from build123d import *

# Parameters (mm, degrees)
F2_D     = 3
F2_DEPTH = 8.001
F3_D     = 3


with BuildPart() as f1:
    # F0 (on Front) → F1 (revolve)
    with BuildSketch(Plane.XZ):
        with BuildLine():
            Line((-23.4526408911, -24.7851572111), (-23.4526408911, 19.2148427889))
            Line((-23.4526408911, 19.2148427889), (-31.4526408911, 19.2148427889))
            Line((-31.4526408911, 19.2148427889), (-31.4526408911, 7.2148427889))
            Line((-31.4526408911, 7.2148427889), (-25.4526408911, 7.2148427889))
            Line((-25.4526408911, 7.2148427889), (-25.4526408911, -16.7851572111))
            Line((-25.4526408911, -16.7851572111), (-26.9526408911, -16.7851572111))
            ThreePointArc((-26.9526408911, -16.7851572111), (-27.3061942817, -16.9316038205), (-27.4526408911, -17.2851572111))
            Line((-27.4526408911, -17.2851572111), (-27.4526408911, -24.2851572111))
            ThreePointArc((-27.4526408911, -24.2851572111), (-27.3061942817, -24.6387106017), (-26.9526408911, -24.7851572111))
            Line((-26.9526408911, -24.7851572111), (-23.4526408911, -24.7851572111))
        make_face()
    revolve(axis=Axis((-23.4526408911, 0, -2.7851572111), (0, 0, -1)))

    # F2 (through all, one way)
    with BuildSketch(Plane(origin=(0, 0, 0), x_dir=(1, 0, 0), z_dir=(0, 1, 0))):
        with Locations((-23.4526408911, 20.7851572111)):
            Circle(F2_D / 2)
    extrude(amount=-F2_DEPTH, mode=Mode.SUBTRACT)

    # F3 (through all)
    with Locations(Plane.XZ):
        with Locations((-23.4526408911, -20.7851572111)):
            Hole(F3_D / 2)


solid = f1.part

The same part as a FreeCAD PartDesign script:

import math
import FreeCAD as App
import Part
import Sketcher
from FreeCAD import Vector

doc = App.newDocument("Part")
params = doc.addObject("Spreadsheet::Sheet", "Params")
for row, (alias, value) in enumerate([
    ("sketch1_radius", "0.5 mm"),
    ("sketch1_width", "8 mm"),
    ("sketch1_width2", "6 mm"),
    ("sketch1_height", "44 mm"),
    ("sketch1_height2", "12 mm"),
    ("revolution_angle", "360 deg"),
    ("sketch2_diameter", "3 mm"),
    ("sketch3_diameter", "3 mm"),
    ("hole_diameter", "3 mm"),
], start=1):
    params.set(f"A{row}", alias)
    params.set(f"B{row}", "=" + value)
    params.setAlias(f"B{row}", alias)

body = doc.addObject("PartDesign::Body", "Body")

# Sketch on XZ plane
sketch1 = body.newObject("Sketcher::SketchObject", "Sketch")
sketch1.AttachmentSupport = (doc.getObject("XZ_Plane"), [""])
sketch1.MapMode = "FlatFace"
sketch1.addGeometry([
    Part.LineSegment(Vector(-23.5, -24.8, 0), Vector(-23.5, 19.2, 0)),  # 0
    Part.LineSegment(Vector(-23.5, 19.2, 0), Vector(-31.5, 19.2, 0)),  # 1
    Part.LineSegment(Vector(-31.5, 19.2, 0), Vector(-31.5, 7.2, 0)),  # 2
    Part.LineSegment(Vector(-31.5, 7.2, 0), Vector(-25.5, 7.2, 0)),  # 3
    Part.LineSegment(Vector(-25.5, 7.2, 0), Vector(-25.5, -16.8, 0)),  # 4
    Part.LineSegment(Vector(-25.5, -16.8, 0), Vector(-27, -16.8, 0)),  # 5
    Part.ArcOfCircle(Part.Circle(Vector(-27, -17.3, 0), Vector(0, 0, 1), 0.5), math.radians(90), math.radians(180)),  # 6
    Part.LineSegment(Vector(-27.5, -17.3, 0), Vector(-27.5, -24.3, 0)),  # 7
    Part.ArcOfCircle(Part.Circle(Vector(-27, -24.3, 0), Vector(0, 0, 1), 0.5), math.radians(180), math.radians(270)),  # 8
    Part.LineSegment(Vector(-27, -24.8, 0), Vector(-23.5, -24.8, 0)),  # 9
], False)
sketch1.addGeometry(Part.LineSegment(Vector(-23.5, 19.2, 0), Vector(-23.5, -24.8, 0)), True)  # axis
sketch1.addConstraint([
    Sketcher.Constraint("Coincident", 0, 2, 1, 1),
    Sketcher.Constraint("Coincident", 1, 2, 2, 1),
    Sketcher.Constraint("Coincident", 2, 2, 3, 1),
    Sketcher.Constraint("Coincident", 3, 2, 4, 1),
    Sketcher.Constraint("Coincident", 4, 2, 5, 1),
    Sketcher.Constraint("Tangent", 5, 2, 6, 1),
    Sketcher.Constraint("Tangent", 6, 2, 7, 1),
    Sketcher.Constraint("Tangent", 7, 2, 8, 1),
    Sketcher.Constraint("Tangent", 8, 2, 9, 1),
    Sketcher.Constraint("Coincident", 9, 2, 0, 1),
    Sketcher.Constraint("Vertical", 0),
    Sketcher.Constraint("Horizontal", 1),
    Sketcher.Constraint("Vertical", 2),
    Sketcher.Constraint("Horizontal", 3),
    Sketcher.Constraint("Vertical", 4),
    Sketcher.Constraint("Horizontal", 5),
    Sketcher.Constraint("Vertical", 7),
    Sketcher.Constraint("Horizontal", 9),
    Sketcher.Constraint("Vertical", 10),
    Sketcher.Constraint("Coincident", 10, 1, 0, 2),
    Sketcher.Constraint("Equal", 6, 8),
    Sketcher.Constraint("Horizontal", 8, 2, 10, 2),
    Sketcher.Constraint("Radius", 6, 0.5),
    Sketcher.Constraint("DistanceX", 1, 2, 1, 1, 8.0),
    Sketcher.Constraint("DistanceX", 3, 1, 3, 2, 6.0),
    Sketcher.Constraint("DistanceY", 0, 1, 0, 2, 44.0),
    Sketcher.Constraint("DistanceY", 2, 2, 2, 1, 12.0),
    Sketcher.Constraint("DistanceY", 4, 2, 4, 1, 24.0),
    Sketcher.Constraint("DistanceX", 5, 2, 5, 1, 1.5),
    Sketcher.Constraint("DistanceX", 6, 3, -1, 1, 26.952641),
    Sketcher.Constraint("DistanceY", 6, 3, -1, 1, 17.285157),
])
sketch1.setExpression("Constraints[22]", "Params.sketch1_radius")
sketch1.setExpression("Constraints[23]", "Params.sketch1_width")
sketch1.setExpression("Constraints[24]", "Params.sketch1_width2")
sketch1.setExpression("Constraints[25]", "Params.sketch1_height")
sketch1.setExpression("Constraints[26]", "Params.sketch1_height2")
revolution = body.newObject("PartDesign::Revolution", "Revolution")
revolution.Profile = sketch1
revolution.ReferenceAxis = (sketch1, ["Axis0"])
revolution.setExpression("Angle", "Params.revolution_angle")

# Sketch on XZ plane
sketch2 = body.newObject("Sketcher::SketchObject", "Sketch001")
sketch2.AttachmentSupport = (doc.getObject("XZ_Plane"), [""])
sketch2.MapMode = "FlatFace"
sketch2.addGeometry(Part.Circle(Vector(-23.5, -20.8, 0), Vector(0, 0, 1), 1.5), False)
sketch2.addConstraint([
    Sketcher.Constraint("Diameter", 0, 3.0),
    Sketcher.Constraint("DistanceX", 0, 3, -1, 1, 23.452641),
    Sketcher.Constraint("DistanceY", 0, 3, -1, 1, 20.785157),
])
sketch2.setExpression("Constraints[0]", "Params.sketch2_diameter")
pocket1 = body.newObject("PartDesign::Pocket", "Pocket")
pocket1.Profile = sketch2
pocket1.Type = "ThroughAll"
pocket1.Reversed = True

# Sketch on XZ plane
sketch3 = body.newObject("Sketcher::SketchObject", "Sketch002")
sketch3.AttachmentSupport = (doc.getObject("XZ_Plane"), [""])
sketch3.MapMode = "FlatFace"
sketch3.addGeometry(Part.Circle(Vector(-23.5, -20.8, 0), Vector(0, 0, 1), 1.5), False)
sketch3.addConstraint([
    Sketcher.Constraint("Diameter", 0, 3.0),
    Sketcher.Constraint("DistanceX", 0, 3, -1, 1, 23.452641),
    Sketcher.Constraint("DistanceY", 0, 3, -1, 1, 20.785157),
])
sketch3.setExpression("Constraints[0]", "Params.sketch3_diameter")
doc.recompute()
hole = body.newObject("PartDesign::Hole", "Hole")
hole.Profile = sketch3
hole.ThreadType = "None"
hole.setExpression("Diameter", "Params.hole_diameter")
hole.DepthType = "ThroughAll"

doc.recompute()
